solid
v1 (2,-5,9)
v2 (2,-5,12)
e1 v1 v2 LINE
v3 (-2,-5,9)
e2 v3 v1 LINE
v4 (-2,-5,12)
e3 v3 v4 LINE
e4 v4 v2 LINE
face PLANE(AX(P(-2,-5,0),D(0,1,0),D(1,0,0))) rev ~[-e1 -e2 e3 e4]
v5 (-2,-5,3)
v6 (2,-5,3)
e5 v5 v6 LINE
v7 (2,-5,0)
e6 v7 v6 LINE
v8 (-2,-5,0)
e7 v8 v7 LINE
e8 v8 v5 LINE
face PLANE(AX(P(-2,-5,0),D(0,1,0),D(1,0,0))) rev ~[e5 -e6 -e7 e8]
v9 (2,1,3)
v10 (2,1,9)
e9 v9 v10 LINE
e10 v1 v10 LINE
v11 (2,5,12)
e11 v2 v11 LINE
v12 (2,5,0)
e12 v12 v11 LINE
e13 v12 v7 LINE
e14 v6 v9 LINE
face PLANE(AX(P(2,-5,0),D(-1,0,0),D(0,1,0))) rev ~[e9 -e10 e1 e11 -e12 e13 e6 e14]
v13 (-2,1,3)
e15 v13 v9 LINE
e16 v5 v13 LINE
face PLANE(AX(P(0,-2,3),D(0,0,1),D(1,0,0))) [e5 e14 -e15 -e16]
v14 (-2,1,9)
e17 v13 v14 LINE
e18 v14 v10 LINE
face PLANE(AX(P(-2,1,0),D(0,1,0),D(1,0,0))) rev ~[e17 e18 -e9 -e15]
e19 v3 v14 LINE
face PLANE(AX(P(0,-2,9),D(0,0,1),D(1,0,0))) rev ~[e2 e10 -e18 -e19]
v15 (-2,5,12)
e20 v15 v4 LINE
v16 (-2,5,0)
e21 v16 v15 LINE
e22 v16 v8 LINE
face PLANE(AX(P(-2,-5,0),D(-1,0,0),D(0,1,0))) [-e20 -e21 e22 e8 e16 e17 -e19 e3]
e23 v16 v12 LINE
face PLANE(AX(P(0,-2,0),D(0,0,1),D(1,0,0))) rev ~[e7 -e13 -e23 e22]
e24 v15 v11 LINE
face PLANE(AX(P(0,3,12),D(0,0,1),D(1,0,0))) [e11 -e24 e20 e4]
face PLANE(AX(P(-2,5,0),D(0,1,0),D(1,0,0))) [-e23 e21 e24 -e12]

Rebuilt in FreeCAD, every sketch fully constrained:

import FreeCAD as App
import Part
import Sketcher
from FreeCAD import Vector

doc = App.newDocument("Part")
body = doc.addObject("PartDesign::Body", "Body")

sketch1 = body.newObject("Sketcher::SketchObject", "Sketch")
sketch1.AttachmentSupport = (doc.getObject("XY_Plane"), [""])
sketch1.MapMode = "FlatFace"
sketch1.addGeometry([
    Part.LineSegment(Vector(-2, 5, 0), Vector(-2, -5, 0)),
    Part.LineSegment(Vector(-2, -5, 0), Vector(2, -5, 0)),
    Part.LineSegment(Vector(2, -5, 0), Vector(2, 5, 0)),
    Part.LineSegment(Vector(2, 5, 0), Vector(-2, 5, 0)),
], False)
sketch1.addConstraint([
    Sketcher.Constraint("Coincident", 0, 2, 1, 1),
    Sketcher.Constraint("Coincident", 1, 2, 2, 1),
    Sketcher.Constraint("Coincident", 2, 2, 3, 1),
    Sketcher.Constraint("Coincident", 3, 2, 0, 1),
    Sketcher.Constraint("Vertical", 0),
    Sketcher.Constraint("Horizontal", 1),
    Sketcher.Constraint("Vertical", 2),
    Sketcher.Constraint("Horizontal", 3),
    Sketcher.Constraint("Symmetric", 0, 2, 2, 2, -1, 1),
    Sketcher.Constraint("DistanceX", 1, 1, 1, 2, 4.0),
    Sketcher.Constraint("DistanceY", 0, 2, 0, 1, 10.0),
])
pad1 = body.newObject("PartDesign::Pad", "Pad")
pad1.Profile = sketch1
pad1.Length = 12

sketch2 = body.newObject("Sketcher::SketchObject", "Sketch001")
sketch2.AttachmentSupport = (doc.getObject("XY_Plane"), [""])
sketch2.MapMode = "FlatFace"
sketch2.addGeometry([
    Part.LineSegment(Vector(-2, 1, 0), Vector(-2, -5, 0)),
    Part.LineSegment(Vector(-2, -5, 0), Vector(2, -5, 0)),
    Part.LineSegment(Vector(2, -5, 0), Vector(2, 1, 0)),
    Part.LineSegment(Vector(2, 1, 0), Vector(-2, 1, 0)),
], False)
sketch2.addConstraint([
    Sketcher.Constraint("Coincident", 0, 2, 1, 1),
    Sketcher.Constraint("Coincident", 1, 2, 2, 1),
    Sketcher.Constraint("Coincident", 2, 2, 3, 1),
    Sketcher.Constraint("Coincident", 3, 2, 0, 1),
    Sketcher.Constraint("Vertical", 0),
    Sketcher.Constraint("Horizontal", 1),
    Sketcher.Constraint("Vertical", 2),
    Sketcher.Constraint("Horizontal", 3),
    Sketcher.Constraint("DistanceX", 1, 1, 1, 2, 4.0),
    Sketcher.Constraint("DistanceY", 0, 2, 0, 1, 6.0),
    Sketcher.Constraint("DistanceX", 0, 2, -1, 1, 2.0),
    Sketcher.Constraint("DistanceY", 0, 2, -1, 1, 5.0),
])
pocket1 = body.newObject("PartDesign::Pocket", "Pocket")
pocket1.Profile = sketch2
pocket1.Length = 9
pocket1.Reversed = True

sketch3 = body.newObject("Sketcher::SketchObject", "Sketch002")
sketch3.AttachmentSupport = (doc.getObject("XY_Plane"), [""])
sketch3.MapMode = "FlatFace"
sketch3.addGeometry([
    Part.LineSegment(Vector(-2, 1, 0), Vector(-2, -5, 0)),
    Part.LineSegment(Vector(-2, -5, 0), Vector(2, -5, 0)),
    Part.LineSegment(Vector(2, -5, 0), Vector(2, 1, 0)),
    Part.LineSegment(Vector(2, 1, 0), Vector(-2, 1, 0)),
], False)
sketch3.addConstraint([
    Sketcher.Constraint("Coincident", 0, 2, 1, 1),
    Sketcher.Constraint("Coincident", 1, 2, 2, 1),
    Sketcher.Constraint("Coincident", 2, 2, 3, 1),
    Sketcher.Constraint("Coincident", 3, 2, 0, 1),
    Sketcher.Constraint("Vertical", 0),
    Sketcher.Constraint("Horizontal", 1),
    Sketcher.Constraint("Vertical", 2),
    Sketcher.Constraint("Horizontal", 3),
    Sketcher.Constraint("DistanceX", 1, 1, 1, 2, 4.0),
    Sketcher.Constraint("DistanceY", 0, 2, 0, 1, 6.0),
    Sketcher.Constraint("DistanceX", 0, 2, -1, 1, 2.0),
    Sketcher.Constraint("DistanceY", 0, 2, -1, 1, 5.0),
])
pad2 = body.newObject("PartDesign::Pad", "Pad001")
pad2.Profile = sketch3
pad2.Length = 3

doc.recompute()
